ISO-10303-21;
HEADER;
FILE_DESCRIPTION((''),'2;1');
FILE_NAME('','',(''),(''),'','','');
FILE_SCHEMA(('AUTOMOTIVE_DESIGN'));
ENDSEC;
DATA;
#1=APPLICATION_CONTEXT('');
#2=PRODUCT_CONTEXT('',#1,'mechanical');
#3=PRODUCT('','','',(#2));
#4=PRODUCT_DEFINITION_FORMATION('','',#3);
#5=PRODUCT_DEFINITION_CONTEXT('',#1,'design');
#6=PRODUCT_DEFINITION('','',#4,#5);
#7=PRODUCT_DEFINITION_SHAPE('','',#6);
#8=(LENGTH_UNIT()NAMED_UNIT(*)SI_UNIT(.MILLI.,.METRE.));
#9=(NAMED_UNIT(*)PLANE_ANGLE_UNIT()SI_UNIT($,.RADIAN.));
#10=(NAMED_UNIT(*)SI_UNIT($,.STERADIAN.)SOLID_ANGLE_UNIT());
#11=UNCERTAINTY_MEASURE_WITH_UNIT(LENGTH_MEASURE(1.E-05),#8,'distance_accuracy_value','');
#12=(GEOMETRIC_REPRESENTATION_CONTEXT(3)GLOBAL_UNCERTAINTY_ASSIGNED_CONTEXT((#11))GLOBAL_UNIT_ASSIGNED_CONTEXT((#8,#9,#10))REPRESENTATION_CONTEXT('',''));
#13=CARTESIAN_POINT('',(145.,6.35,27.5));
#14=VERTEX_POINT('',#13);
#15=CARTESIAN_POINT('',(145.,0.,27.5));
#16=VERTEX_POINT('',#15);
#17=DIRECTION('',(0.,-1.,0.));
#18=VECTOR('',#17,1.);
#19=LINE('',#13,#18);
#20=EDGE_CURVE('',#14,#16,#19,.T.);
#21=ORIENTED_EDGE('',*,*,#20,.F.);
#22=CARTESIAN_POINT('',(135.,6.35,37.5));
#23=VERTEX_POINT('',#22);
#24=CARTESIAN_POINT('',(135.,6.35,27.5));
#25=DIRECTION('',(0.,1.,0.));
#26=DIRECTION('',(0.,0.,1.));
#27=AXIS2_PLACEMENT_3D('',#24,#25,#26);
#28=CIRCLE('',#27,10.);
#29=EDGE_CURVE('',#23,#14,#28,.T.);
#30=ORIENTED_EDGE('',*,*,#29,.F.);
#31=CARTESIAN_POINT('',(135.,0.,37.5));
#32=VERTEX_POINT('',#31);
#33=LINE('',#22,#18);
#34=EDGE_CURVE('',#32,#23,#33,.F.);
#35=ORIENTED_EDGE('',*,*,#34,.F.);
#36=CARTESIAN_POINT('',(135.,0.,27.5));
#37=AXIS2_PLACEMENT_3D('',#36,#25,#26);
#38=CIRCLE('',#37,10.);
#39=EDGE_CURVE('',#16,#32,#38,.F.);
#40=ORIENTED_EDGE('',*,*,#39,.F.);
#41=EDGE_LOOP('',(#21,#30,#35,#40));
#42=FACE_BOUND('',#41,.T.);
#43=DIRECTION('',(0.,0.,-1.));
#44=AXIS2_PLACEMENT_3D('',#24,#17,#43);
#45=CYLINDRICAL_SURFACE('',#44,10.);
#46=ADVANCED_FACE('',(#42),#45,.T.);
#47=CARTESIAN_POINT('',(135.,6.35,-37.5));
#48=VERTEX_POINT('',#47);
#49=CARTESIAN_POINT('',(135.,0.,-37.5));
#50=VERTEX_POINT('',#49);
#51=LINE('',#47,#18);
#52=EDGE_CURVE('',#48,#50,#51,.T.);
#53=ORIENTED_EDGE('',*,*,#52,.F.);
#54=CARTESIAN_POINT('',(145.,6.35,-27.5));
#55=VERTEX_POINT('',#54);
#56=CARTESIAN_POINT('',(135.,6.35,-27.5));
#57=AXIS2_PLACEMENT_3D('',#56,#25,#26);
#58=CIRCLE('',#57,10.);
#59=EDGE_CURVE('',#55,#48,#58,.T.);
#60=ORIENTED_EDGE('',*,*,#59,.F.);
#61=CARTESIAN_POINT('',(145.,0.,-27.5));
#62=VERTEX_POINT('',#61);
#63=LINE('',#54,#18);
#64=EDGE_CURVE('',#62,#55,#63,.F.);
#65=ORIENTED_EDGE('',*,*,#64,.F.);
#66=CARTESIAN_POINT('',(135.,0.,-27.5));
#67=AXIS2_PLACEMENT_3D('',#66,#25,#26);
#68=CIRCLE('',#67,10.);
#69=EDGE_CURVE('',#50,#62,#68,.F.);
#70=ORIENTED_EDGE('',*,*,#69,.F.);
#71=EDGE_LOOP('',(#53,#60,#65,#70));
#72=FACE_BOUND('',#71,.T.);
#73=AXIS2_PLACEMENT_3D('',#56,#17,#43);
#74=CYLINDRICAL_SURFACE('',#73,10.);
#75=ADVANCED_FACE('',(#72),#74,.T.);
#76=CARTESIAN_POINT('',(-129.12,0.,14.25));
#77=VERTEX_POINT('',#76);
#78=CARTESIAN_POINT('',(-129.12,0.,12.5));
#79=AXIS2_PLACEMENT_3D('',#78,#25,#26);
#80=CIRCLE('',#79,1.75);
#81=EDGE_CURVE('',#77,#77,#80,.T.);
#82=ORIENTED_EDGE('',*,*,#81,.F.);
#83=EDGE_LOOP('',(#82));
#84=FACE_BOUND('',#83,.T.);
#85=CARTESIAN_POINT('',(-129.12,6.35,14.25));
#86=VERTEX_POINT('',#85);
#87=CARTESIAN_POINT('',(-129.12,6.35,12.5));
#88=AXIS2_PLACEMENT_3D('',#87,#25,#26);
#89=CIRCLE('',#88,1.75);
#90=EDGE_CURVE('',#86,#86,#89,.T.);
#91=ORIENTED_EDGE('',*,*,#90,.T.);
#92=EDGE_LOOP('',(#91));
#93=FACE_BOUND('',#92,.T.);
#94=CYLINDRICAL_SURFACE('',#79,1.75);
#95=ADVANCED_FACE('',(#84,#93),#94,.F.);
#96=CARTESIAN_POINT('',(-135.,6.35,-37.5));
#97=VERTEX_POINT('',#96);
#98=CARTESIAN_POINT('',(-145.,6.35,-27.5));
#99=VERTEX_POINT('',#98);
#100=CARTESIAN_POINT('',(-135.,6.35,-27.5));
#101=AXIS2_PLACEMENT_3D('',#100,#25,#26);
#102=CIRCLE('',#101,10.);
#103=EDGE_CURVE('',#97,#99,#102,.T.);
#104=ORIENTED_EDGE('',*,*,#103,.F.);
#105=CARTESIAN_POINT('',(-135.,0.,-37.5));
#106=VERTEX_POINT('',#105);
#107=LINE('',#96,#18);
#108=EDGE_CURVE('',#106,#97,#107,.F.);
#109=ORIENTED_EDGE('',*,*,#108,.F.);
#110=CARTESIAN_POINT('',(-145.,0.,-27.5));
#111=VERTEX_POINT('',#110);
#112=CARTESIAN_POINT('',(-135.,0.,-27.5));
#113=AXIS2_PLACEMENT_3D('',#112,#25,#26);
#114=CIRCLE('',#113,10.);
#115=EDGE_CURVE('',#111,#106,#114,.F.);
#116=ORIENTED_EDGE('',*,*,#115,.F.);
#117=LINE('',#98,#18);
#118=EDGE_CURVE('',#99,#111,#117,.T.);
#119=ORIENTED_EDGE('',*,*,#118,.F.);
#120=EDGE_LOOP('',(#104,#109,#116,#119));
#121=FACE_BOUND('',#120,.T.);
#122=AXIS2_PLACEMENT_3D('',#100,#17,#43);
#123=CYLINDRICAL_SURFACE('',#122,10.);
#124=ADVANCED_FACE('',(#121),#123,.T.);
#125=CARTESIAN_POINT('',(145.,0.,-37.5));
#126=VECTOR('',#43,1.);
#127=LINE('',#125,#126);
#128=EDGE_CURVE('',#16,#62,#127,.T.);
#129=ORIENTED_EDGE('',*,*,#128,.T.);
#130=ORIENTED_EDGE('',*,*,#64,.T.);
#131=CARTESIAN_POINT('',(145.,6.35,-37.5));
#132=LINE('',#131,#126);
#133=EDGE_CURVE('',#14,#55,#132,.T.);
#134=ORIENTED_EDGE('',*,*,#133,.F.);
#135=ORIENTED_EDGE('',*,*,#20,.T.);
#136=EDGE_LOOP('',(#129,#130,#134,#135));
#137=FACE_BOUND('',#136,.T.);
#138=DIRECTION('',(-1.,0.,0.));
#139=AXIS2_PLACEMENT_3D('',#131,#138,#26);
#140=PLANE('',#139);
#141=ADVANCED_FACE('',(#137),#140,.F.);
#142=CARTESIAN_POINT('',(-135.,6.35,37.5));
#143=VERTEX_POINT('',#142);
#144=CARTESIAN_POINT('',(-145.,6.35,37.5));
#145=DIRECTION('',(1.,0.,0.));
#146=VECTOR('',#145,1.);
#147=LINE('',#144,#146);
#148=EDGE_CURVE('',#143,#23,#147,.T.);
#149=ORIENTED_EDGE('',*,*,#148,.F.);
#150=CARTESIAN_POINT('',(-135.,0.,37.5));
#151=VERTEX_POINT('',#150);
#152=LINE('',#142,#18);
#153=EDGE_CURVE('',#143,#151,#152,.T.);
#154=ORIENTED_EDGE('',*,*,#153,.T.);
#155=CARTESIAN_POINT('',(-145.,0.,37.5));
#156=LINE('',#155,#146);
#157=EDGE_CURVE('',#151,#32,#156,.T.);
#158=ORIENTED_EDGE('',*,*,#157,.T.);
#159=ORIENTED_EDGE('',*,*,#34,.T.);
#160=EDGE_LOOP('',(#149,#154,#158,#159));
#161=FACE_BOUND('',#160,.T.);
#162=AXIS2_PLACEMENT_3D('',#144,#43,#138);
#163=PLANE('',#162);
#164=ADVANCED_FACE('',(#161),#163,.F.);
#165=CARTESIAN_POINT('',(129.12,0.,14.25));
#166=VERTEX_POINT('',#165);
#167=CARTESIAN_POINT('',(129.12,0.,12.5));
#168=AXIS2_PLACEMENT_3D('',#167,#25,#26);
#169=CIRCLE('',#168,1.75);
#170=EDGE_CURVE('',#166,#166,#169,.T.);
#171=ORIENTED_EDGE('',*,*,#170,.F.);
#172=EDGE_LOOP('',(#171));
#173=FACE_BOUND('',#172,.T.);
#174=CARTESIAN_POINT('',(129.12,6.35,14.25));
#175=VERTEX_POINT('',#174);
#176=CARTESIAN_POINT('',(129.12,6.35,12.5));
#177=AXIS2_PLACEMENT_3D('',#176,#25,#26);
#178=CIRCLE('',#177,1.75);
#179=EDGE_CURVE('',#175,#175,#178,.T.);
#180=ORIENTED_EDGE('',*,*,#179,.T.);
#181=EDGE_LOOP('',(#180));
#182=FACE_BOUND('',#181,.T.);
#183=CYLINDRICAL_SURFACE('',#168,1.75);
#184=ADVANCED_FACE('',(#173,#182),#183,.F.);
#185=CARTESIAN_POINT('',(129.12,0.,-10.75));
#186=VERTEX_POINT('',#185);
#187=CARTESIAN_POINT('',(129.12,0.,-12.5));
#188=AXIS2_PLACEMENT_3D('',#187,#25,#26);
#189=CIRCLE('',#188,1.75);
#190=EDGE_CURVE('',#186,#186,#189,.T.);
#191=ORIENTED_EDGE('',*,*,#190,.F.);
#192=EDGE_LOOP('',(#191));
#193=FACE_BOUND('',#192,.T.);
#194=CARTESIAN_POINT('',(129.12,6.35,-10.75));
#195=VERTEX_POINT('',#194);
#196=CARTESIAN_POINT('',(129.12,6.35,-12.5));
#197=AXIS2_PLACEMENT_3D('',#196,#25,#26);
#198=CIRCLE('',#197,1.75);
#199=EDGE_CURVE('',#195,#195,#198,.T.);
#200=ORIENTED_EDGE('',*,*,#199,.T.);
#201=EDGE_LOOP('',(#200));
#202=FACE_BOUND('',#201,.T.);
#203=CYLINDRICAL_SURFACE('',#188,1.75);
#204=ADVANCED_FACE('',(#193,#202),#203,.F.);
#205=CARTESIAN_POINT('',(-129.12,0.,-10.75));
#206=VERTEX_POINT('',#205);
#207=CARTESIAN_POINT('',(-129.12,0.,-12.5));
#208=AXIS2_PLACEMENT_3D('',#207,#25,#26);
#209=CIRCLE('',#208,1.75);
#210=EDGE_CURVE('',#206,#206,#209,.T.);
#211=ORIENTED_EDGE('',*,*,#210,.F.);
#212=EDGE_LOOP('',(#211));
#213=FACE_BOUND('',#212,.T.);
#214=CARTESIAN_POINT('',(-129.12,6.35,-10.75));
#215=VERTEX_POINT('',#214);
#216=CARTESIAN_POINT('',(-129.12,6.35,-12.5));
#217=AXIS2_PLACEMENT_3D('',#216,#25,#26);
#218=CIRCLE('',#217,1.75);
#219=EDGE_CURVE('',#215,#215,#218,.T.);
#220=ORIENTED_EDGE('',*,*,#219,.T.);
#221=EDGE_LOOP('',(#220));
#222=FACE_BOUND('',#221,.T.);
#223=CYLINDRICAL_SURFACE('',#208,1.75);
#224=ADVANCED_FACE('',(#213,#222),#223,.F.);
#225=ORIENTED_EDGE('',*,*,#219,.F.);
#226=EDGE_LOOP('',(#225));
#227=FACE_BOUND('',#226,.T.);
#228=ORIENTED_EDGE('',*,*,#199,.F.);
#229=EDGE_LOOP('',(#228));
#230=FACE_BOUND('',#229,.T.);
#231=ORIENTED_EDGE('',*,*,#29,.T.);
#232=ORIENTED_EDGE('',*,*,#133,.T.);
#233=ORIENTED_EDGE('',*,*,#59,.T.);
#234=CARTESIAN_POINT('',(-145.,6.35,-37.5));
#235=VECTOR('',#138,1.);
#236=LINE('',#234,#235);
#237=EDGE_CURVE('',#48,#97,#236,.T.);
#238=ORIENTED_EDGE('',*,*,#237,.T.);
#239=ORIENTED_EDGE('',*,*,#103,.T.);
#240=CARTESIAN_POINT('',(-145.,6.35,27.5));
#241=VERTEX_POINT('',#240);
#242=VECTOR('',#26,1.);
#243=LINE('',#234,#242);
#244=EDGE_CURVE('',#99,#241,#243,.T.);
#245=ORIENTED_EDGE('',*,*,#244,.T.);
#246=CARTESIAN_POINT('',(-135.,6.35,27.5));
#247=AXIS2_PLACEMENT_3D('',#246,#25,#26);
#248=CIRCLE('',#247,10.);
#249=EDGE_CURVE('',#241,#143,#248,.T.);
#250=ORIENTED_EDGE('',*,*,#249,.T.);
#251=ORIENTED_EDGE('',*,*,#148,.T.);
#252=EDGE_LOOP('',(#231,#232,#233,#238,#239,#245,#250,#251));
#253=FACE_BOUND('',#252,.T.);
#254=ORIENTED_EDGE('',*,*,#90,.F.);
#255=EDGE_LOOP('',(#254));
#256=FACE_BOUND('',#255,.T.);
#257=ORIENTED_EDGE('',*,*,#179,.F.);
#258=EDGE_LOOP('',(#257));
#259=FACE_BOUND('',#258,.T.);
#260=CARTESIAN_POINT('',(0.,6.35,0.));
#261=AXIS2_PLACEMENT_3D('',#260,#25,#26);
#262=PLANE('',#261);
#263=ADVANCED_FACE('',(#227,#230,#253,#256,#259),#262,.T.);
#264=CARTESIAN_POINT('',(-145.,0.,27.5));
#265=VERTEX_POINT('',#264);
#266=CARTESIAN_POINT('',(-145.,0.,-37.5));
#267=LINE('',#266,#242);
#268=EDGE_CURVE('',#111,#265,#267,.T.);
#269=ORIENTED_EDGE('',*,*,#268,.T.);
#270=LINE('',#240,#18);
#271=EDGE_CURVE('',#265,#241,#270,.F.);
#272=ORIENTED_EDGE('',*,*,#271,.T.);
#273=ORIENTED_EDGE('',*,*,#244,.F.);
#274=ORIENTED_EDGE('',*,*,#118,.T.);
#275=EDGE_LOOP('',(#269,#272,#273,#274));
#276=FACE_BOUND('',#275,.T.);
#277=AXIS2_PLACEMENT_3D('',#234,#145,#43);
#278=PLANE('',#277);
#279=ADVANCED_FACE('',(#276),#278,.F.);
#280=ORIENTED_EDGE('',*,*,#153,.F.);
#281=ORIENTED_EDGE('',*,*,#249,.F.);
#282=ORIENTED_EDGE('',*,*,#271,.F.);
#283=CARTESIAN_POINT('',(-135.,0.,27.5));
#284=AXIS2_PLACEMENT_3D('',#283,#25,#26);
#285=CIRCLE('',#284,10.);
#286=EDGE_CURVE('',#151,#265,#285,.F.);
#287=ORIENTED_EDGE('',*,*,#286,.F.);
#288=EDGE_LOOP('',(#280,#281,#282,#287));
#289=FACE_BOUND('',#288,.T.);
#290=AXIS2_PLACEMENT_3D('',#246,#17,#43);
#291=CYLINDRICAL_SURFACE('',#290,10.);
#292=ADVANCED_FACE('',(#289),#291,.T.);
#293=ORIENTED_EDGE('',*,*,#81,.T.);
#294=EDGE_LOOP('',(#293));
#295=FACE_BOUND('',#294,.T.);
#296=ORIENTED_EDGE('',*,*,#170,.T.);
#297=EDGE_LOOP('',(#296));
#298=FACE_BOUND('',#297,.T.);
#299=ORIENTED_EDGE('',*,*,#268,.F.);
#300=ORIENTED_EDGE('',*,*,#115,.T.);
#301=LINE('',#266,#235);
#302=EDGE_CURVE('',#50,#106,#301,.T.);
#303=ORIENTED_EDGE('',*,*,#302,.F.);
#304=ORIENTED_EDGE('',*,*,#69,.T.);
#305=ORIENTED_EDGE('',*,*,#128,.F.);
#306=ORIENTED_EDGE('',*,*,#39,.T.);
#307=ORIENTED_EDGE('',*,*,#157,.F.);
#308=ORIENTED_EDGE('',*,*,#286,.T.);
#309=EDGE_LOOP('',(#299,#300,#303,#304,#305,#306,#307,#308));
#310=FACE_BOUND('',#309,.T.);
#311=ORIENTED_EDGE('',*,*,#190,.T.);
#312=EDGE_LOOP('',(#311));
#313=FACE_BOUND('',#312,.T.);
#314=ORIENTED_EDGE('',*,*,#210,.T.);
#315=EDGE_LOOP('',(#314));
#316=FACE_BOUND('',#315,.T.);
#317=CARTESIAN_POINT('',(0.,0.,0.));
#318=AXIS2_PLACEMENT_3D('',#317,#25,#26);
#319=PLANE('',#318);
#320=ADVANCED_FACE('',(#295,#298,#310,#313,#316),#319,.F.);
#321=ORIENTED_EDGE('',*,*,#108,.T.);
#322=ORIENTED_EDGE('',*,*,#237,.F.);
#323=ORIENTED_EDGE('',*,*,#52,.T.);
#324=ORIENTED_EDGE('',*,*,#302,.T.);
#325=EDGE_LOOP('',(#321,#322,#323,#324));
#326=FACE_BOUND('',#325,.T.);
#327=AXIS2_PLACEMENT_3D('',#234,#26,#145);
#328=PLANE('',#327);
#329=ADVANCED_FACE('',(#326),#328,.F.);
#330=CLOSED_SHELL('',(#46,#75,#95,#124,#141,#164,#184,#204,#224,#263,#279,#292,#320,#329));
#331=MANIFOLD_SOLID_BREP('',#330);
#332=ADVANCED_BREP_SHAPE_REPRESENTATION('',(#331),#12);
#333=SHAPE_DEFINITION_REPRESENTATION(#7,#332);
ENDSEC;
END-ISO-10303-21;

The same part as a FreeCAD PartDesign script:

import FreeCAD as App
import Part
import Sketcher

V = App.Vector
Q = App.Units.Quantity


def edges_at(feature, points):
    """Names of the edges that pass closest to the given points."""
    edges = feature.Shape.Edges
    near = lambda p: min(range(len(edges)), key=lambda i: edges[i].distToShape(Part.Vertex(*p))[0])
    return sorted({f"Edge{near(p) + 1}" for p in points})

doc = App.newDocument("Part")
body = doc.addObject("PartDesign::Body", "Body")

sketch1 = body.newObject("Sketcher::SketchObject", "Sketch")
sketch1.AttachmentSupport = (doc.getObject("XZ_Plane"), [""])
sketch1.MapMode = "FlatFace"
sketch1.addGeometry([
    Part.LineSegment(V(-145, -38, 0), V(-145, 38, 0)),
    Part.LineSegment(V(-145, 38, 0), V(145, 38, 0)),
    Part.LineSegment(V(145, 38, 0), V(145, -38, 0)),
    Part.LineSegment(V(145, -38, 0), V(-145, -38, 0)),
], False)
sketch1.addConstraint([
    Sketcher.Constraint("Coincident", 0, 2, 1, 1),
    Sketcher.Constraint("Coincident", 1, 2, 2, 1),
    Sketcher.Constraint("Coincident", 2, 2, 3, 1),
    Sketcher.Constraint("Coincident", 3, 2, 0, 1),
    Sketcher.Constraint("Vertical", 0),
    Sketcher.Constraint("Horizontal", 1),
    Sketcher.Constraint("Vertical", 2),
    Sketcher.Constraint("Horizontal", 3),
    Sketcher.Constraint("Symmetric", 0, 2, 2, 2, -1, 1),
    Sketcher.Constraint("DistanceX", 1, 1, 1, 2, Q("290 mm")),
    Sketcher.Constraint("DistanceY", 0, 1, 0, 2, Q("75 mm")),
])
pad1 = body.newObject("PartDesign::Pad", "Pad")
pad1.Profile = sketch1
pad1.Length = 6.35
pad1.Reversed = True

sketch2 = body.newObject("Sketcher::SketchObject", "Sketch001")
sketch2.AttachmentSupport = (doc.getObject("XZ_Plane"), [""])
sketch2.MapMode = "FlatFace"
sketch2.AttachmentOffset = App.Placement(V(0, 0, -6.35), App.Rotation())
sketch2.addGeometry(Part.Circle(V(129.1, -12.5, 0), V(0, 0, 1), 1.8), False)
sketch2.addConstraint([
    Sketcher.Constraint("Diameter", 0, Q("3.5 mm")),
    Sketcher.Constraint("DistanceY", 0, 3, -1, 1, Q("12.5 mm")),
    Sketcher.Constraint("DistanceX", -1, 1, 0, 3, Q("129.12 mm")),
])
pocket1 = body.newObject("PartDesign::Pocket", "Pocket")
pocket1.Profile = sketch2
pocket1.Type = "ThroughAll"
pocket1.Reversed = True
doc.recompute()

fillet = body.newObject("PartDesign::Fillet", "Fillet")
fillet.Base = (pocket1, edges_at(pocket1, [
    (145, 3.175, 37.5),
    (-145, 3.175, 37.5),
    (-145, 3.175, -37.5),
    (145, 3.175, -37.5),
]))
fillet.Radius = 10

sketch3 = body.newObject("Sketcher::SketchObject", "Sketch002")
sketch3.AttachmentSupport = (doc.getObject("XZ_Plane"), [""])
sketch3.MapMode = "FlatFace"
sketch3.AttachmentOffset = App.Placement(V(0, 0, -6.35), App.Rotation())
sketch3.addGeometry(Part.Circle(V(-129.1, -12.5, 0), V(0, 0, 1), 1.8), False)
sketch3.addConstraint([
    Sketcher.Constraint("Diameter", 0, Q("3.5 mm")),
    Sketcher.Constraint("DistanceY", 0, 3, -1, 1, Q("12.5 mm")),
    Sketcher.Constraint("DistanceX", 0, 3, -1, 1, Q("129.12 mm")),
])
pocket2 = body.newObject("PartDesign::Pocket", "Pocket001")
pocket2.Profile = sketch3
pocket2.Type = "ThroughAll"
pocket2.Reversed = True
doc.recompute()

linearpattern = body.newObject("PartDesign::LinearPattern", "LinearPattern")
linearpattern.Originals = [pocket1, pocket2]
linearpattern.Direction = (doc.getObject("Z_Axis"), [""])
linearpattern.Mode = "offset"
linearpattern.Offset = 25
linearpattern.Occurrences = 2
body.Tip = linearpattern

doc.recompute()
